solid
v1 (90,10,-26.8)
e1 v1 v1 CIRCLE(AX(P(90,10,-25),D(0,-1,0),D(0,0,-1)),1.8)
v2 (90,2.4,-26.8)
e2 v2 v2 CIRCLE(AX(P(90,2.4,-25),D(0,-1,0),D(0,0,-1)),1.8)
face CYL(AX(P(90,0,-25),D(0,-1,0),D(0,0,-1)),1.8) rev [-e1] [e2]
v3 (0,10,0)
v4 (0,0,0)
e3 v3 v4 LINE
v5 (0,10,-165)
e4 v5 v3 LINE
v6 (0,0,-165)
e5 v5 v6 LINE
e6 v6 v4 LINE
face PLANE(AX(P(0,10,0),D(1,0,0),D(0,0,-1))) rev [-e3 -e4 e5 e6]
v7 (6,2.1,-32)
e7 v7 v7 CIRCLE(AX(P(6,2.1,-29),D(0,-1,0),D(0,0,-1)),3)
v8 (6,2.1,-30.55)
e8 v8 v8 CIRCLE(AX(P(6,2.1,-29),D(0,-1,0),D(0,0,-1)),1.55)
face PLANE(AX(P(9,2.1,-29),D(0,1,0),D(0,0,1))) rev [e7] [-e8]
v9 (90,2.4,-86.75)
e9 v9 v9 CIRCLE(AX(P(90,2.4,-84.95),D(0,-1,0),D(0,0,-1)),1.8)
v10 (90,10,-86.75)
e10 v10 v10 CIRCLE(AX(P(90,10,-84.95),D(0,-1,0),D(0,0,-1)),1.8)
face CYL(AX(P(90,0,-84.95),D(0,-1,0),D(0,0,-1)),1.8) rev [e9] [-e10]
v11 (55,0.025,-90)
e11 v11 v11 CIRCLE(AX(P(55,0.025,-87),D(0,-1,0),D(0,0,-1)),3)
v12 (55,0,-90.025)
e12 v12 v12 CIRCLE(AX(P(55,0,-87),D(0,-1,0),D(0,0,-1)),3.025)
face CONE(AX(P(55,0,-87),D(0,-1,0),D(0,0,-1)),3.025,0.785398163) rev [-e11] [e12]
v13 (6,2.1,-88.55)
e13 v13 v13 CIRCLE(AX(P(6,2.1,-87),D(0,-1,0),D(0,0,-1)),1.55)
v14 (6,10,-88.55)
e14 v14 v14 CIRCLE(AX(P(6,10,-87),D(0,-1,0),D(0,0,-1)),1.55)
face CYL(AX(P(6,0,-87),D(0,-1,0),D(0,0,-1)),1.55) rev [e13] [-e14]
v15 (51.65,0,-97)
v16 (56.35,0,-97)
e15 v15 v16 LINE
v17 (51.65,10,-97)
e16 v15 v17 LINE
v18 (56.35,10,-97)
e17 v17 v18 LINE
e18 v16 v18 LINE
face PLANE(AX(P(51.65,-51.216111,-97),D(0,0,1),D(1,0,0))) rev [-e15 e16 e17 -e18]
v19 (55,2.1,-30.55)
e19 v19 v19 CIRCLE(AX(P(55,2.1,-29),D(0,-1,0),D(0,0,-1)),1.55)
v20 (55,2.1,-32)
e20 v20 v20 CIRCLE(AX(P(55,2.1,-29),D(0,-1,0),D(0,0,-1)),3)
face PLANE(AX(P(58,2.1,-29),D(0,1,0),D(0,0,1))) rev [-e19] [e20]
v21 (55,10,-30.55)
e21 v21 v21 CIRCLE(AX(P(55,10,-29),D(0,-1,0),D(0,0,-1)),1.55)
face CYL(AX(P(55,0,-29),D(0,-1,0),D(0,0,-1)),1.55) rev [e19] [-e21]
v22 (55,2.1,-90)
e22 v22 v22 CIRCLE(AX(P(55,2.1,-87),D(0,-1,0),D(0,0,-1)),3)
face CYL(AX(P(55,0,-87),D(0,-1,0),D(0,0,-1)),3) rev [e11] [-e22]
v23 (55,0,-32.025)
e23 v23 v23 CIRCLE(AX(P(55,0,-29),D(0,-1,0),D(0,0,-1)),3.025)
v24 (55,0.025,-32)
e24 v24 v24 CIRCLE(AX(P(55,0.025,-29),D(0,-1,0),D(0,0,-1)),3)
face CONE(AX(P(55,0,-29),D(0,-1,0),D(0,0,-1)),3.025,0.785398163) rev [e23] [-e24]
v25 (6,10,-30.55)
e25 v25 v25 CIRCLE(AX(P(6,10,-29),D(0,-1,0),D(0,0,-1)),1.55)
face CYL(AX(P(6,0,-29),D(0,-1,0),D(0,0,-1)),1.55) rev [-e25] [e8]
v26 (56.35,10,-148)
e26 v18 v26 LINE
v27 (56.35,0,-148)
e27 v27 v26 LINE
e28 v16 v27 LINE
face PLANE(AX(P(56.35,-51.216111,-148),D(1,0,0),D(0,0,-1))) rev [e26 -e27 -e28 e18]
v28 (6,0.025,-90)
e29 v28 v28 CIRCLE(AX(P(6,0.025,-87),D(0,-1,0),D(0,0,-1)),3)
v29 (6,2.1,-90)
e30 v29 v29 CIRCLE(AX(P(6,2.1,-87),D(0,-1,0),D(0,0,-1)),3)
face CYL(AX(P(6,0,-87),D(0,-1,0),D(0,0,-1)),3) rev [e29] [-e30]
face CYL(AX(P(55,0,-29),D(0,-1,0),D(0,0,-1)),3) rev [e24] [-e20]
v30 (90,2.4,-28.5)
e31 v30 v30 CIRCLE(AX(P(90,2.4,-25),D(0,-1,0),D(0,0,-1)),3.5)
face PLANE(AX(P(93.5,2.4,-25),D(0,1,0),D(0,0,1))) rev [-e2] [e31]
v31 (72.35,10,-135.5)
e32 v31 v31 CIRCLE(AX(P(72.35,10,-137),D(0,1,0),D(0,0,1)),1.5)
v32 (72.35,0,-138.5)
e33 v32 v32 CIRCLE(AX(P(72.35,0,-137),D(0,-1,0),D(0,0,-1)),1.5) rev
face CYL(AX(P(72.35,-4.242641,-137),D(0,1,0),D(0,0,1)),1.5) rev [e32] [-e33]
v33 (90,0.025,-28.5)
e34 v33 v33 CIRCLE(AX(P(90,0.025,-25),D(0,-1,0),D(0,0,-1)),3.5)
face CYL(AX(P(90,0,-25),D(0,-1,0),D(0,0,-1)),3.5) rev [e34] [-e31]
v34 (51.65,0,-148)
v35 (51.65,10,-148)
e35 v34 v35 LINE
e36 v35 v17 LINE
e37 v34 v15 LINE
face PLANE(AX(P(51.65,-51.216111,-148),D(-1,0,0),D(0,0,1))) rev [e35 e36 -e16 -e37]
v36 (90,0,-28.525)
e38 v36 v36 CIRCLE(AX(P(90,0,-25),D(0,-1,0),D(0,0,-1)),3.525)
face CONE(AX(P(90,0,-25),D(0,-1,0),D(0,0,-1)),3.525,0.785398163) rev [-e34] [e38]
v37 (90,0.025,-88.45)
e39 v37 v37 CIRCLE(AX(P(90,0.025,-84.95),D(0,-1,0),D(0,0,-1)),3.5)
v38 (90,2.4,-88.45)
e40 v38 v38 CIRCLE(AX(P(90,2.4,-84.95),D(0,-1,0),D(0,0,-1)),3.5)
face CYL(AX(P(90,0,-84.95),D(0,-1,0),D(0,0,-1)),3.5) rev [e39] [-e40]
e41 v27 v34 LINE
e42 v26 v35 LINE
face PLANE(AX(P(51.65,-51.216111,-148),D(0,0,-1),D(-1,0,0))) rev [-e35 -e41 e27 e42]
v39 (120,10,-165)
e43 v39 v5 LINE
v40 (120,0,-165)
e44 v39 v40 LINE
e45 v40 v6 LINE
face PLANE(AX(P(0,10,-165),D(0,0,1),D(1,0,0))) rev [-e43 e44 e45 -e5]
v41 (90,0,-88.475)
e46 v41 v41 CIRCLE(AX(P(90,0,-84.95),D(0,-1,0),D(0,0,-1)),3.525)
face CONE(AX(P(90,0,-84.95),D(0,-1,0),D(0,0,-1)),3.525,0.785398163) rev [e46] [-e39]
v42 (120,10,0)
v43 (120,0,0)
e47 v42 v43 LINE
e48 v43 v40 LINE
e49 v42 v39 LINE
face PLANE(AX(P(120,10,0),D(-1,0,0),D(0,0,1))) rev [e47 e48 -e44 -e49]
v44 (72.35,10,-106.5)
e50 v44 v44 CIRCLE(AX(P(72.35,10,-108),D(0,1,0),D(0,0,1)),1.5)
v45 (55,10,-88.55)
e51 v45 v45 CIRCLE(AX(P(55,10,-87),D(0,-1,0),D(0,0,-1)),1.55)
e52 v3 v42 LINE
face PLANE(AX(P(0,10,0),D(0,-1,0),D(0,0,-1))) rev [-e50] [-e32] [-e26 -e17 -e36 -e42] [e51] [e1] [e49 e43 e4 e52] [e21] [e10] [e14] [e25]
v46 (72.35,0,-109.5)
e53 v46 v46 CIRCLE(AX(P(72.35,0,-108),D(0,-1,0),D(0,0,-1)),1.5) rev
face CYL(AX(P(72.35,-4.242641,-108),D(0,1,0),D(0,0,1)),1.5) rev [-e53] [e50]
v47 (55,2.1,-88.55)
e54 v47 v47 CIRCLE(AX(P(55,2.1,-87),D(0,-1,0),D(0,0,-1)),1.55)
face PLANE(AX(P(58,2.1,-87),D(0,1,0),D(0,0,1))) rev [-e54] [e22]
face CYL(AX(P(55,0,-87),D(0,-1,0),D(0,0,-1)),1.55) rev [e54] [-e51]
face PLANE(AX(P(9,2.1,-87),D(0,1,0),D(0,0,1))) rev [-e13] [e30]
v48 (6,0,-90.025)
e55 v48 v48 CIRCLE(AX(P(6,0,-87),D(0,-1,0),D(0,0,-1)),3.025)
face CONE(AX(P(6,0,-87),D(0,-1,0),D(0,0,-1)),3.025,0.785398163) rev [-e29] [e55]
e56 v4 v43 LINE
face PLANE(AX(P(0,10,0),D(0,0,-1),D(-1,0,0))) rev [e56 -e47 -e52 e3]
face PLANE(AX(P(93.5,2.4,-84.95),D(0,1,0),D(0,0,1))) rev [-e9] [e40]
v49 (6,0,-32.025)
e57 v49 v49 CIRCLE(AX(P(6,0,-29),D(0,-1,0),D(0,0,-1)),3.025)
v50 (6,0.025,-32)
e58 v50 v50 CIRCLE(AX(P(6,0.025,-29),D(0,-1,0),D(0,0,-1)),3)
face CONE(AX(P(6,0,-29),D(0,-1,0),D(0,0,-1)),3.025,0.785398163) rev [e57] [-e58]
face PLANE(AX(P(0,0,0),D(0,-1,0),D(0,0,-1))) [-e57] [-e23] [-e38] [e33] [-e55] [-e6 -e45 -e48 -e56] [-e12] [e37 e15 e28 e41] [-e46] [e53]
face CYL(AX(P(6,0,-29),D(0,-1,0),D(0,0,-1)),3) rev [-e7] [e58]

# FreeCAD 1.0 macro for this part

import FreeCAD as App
import Part
import Sketcher
Q = App.Units.Quantity


def add_polygon(sketch, points):
    """Adds a closed chain of lines whose ends are joined by coincident constraints."""
    first, n = sketch.GeometryCount, len(points)
    for a, b in zip(points, points[1:] + points[:1]):
        sketch.addGeometry(Part.LineSegment(App.Vector(*a, 0), App.Vector(*b, 0)), False)
    for i in range(n):
        sketch.addConstraint(Sketcher.Constraint("Coincident", first + i, 2, first + (i + 1) % n, 1))

doc = App.newDocument("Part")
body = doc.addObject("PartDesign::Body", "Body")

# Sketch on XZ plane
sketch1 = body.newObject("Sketcher::SketchObject", "Sketch")
sketch1.AttachmentSupport = (doc.getObject("XZ_Plane"), [""])
sketch1.MapMode = "FlatFace"
add_polygon(sketch1, [(0, -165), (0, 0), (120, 0), (120, -165)])  # lines 0-3
sketch1.addConstraint(Sketcher.Constraint("Vertical", 0))
sketch1.addConstraint(Sketcher.Constraint("Horizontal", 1))
sketch1.addConstraint(Sketcher.Constraint("Vertical", 2))
sketch1.addConstraint(Sketcher.Constraint("Horizontal", 3))
sketch1.addConstraint(Sketcher.Constraint("Coincident", 0, 2, -1, 1))
sketch1.addConstraint(Sketcher.Constraint("DistanceX", 1, 1, 1, 2, 120.0))
sketch1.addConstraint(Sketcher.Constraint("DistanceY", 0, 1, 0, 2, 165.0))
pad1 = body.newObject("PartDesign::Pad", "Pad")
pad1.Profile = sketch1
pad1.Length = 10
pad1.Reversed = True

# Sketch on YZ plane
sketch2 = body.newObject("Sketcher::SketchObject", "Sketch001")
sketch2.AttachmentSupport = (doc.getObject("YZ_Plane"), [""])
sketch2.MapMode = "FlatFace"
sketch2.AttachmentOffset = App.Placement(App.Vector(0, 0, 6), App.Rotation())
add_polygon(sketch2, [(10, -29), (0, -29), (0, -32.025), (0.025, -32), (2.1, -32), (2.1, -30.55), (10, -30.55)])  # lines 0-6
sketch2.addGeometry(Part.LineSegment(App.Vector(0, -29, 0), App.Vector(10, -29, 0)), True)  # axis
sketch2.addConstraint(Sketcher.Constraint("Horizontal", 0))
sketch2.addConstraint(Sketcher.Constraint("Vertical", 1))
sketch2.addConstraint(Sketcher.Constraint("Horizontal", 3))
sketch2.addConstraint(Sketcher.Constraint("Vertical", 4))
sketch2.addConstraint(Sketcher.Constraint("Horizontal", 5))
sketch2.addConstraint(Sketcher.Constraint("Vertical", 6))
sketch2.addConstraint(Sketcher.Constraint("Horizontal", 7))
sketch2.addConstraint(Sketcher.Constraint("Coincident", 7, 1, 0, 2))
sketch2.addConstraint(Sketcher.Constraint("PointOnObject", 0, 2, -2))
sketch2.addConstraint(Sketcher.Constraint("Vertical", 5, 2, 7, 2))
sketch2.addConstraint(Sketcher.Constraint("DistanceX", 0, 2, 0, 1, 10.0))
sketch2.addConstraint(Sketcher.Constraint("Angle", 2, Q("45 deg")))
sketch2.addConstraint(Sketcher.Constraint("DistanceX", 5, 1, 5, 2, 7.9))
sketch2.addConstraint(Sketcher.Constraint("DistanceY", 0, 2, -1, 1, 29.0))
sketch2.addConstraint(Sketcher.Constraint("DistanceY", 2, 2, -1, 1, 32.0))
sketch2.addConstraint(Sketcher.Constraint("DistanceY", 4, 1, 4, 2, 1.45))
sketch2.addConstraint(Sketcher.Constraint("DistanceX", 3, 1, 3, 2, 2.075))
groove = body.newObject("PartDesign::Groove", "Groove")
groove.Profile = sketch2
groove.ReferenceAxis = (sketch2, ["Axis0"])
groove.Angle = 360
doc.recompute()

linearpattern = body.newObject("PartDesign::LinearPattern", "LinearPattern")
linearpattern.Originals = [groove]
linearpattern.Direction = (doc.getObject("X_Axis"), [""])
linearpattern.Mode = "offset"
linearpattern.Offset = 49
linearpattern.Occurrences = 2
body.Tip = linearpattern
doc.recompute()

datumline = body.newObject("PartDesign::Line", "DatumLine")
datumline.Placement = App.Placement(App.Vector(0, 0, 0), App.Rotation(App.Vector(0, 0, 1), App.Vector(0.645351649, 0, -0.763885626)))
linearpattern2 = body.newObject("PartDesign::LinearPattern", "LinearPattern001")
linearpattern2.Originals = [groove]
linearpattern2.Direction = (datumline, [""])
linearpattern2.Mode = "offset"
linearpattern2.Offset = 75.927597
linearpattern2.Occurrences = 2
body.Tip = linearpattern2
doc.recompute()

linearpattern3 = body.newObject("PartDesign::LinearPattern", "LinearPattern002")
linearpattern3.Originals = [groove]
linearpattern3.Direction = (doc.getObject("Z_Axis"), [""])
linearpattern3.Mode = "offset"
linearpattern3.Offset = 58
linearpattern3.Occurrences = 2
linearpattern3.Reversed = True
body.Tip = linearpattern3

# Sketch on YZ plane
sketch3 = body.newObject("Sketcher::SketchObject", "Sketch002")
sketch3.AttachmentSupport = (doc.getObject("YZ_Plane"), [""])
sketch3.MapMode = "FlatFace"
sketch3.AttachmentOffset = App.Placement(App.Vector(0, 0, 90), App.Rotation())
add_polygon(sketch3, [(10, -25), (0, -25), (0, -28.525), (0.025, -28.5), (2.4, -28.5), (2.4, -26.8), (10, -26.8)])  # lines 0-6
sketch3.addGeometry(Part.LineSegment(App.Vector(0, -25, 0), App.Vector(10, -25, 0)), True)  # axis
sketch3.addConstraint(Sketcher.Constraint("Horizontal", 0))
sketch3.addConstraint(Sketcher.Constraint("Vertical", 1))
sketch3.addConstraint(Sketcher.Constraint("Horizontal", 3))
sketch3.addConstraint(Sketcher.Constraint("Vertical", 4))
sketch3.addConstraint(Sketcher.Constraint("Horizontal", 5))
sketch3.addConstraint(Sketcher.Constraint("Vertical", 6))
sketch3.addConstraint(Sketcher.Constraint("Horizontal", 7))
sketch3.addConstraint(Sketcher.Constraint("Coincident", 7, 1, 0, 2))
sketch3.addConstraint(Sketcher.Constraint("PointOnObject", 0, 2, -2))
sketch3.addConstraint(Sketcher.Constraint("Vertical", 5, 2, 7, 2))
sketch3.addConstraint(Sketcher.Constraint("DistanceX", 0, 2, 0, 1, 10.0))
sketch3.addConstraint(Sketcher.Constraint("Angle", 2, Q("45 deg")))
sketch3.addConstraint(Sketcher.Constraint("DistanceX", 5, 1, 5, 2, 7.6))
sketch3.addConstraint(Sketcher.Constraint("DistanceY", 4, 1, 4, 2, 1.7))
sketch3.addConstraint(Sketcher.Constraint("DistanceY", 6, 1, 6, 2, 1.8))
sketch3.addConstraint(Sketcher.Constraint("DistanceY", 0, 2, -1, 1, 25.0))
sketch3.addConstraint(Sketcher.Constraint("DistanceX", 3, 1, 3, 2, 2.375))
groove2 = body.newObject("PartDesign::Groove", "Groove001")
groove2.Profile = sketch3
groove2.ReferenceAxis = (sketch3, ["Axis0"])
groove2.Angle = 360
doc.recompute()

linearpattern4 = body.newObject("PartDesign::LinearPattern", "LinearPattern003")
linearpattern4.Originals = [groove2]
linearpattern4.Direction = (doc.getObject("Z_Axis"), [""])
linearpattern4.Mode = "offset"
linearpattern4.Offset = 59.95
linearpattern4.Occurrences = 2
linearpattern4.Reversed = True
body.Tip = linearpattern4

# Sketch on XZ plane
sketch4 = body.newObject("Sketcher::SketchObject", "Sketch003")
sketch4.AttachmentSupport = (doc.getObject("XZ_Plane"), [""])
sketch4.MapMode = "FlatFace"
sketch4.AttachmentOffset = App.Placement(App.Vector(0, 0, -10), App.Rotation())
add_polygon(sketch4, [(51.6, -148), (51.6, -97), (56.4, -97), (56.4, -148)])  # lines 0-3
sketch4.addConstraint(Sketcher.Constraint("Vertical", 0))
sketch4.addConstraint(Sketcher.Constraint("Horizontal", 1))
sketch4.addConstraint(Sketcher.Constraint("Vertical", 2))
sketch4.addConstraint(Sketcher.Constraint("Horizontal", 3))
sketch4.addConstraint(Sketcher.Constraint("DistanceY", 0, 1, 0, 2, 51.0))
sketch4.addConstraint(Sketcher.Constraint("DistanceX", 1, 1, 1, 2, 4.7))
sketch4.addConstraint(Sketcher.Constraint("DistanceY", 0, 2, -1, 1, 97.0))
sketch4.addConstraint(Sketcher.Constraint("DistanceX", -1, 1, 0, 2, 51.65))
pocket1 = body.newObject("PartDesign::Pocket", "Pocket")
pocket1.Profile = sketch4
pocket1.Length = 10
pocket1.Reversed = True

# Sketch on XZ plane
sketch5 = body.newObject("Sketcher::SketchObject", "Sketch004")
sketch5.AttachmentSupport = (doc.getObject("XZ_Plane"), [""])
sketch5.MapMode = "FlatFace"
sketch5.AttachmentOffset = App.Placement(App.Vector(0, 0, -10), App.Rotation())
sketch5.addGeometry(Part.Circle(App.Vector(72.3, -137, 0), App.Vector(0, 0, 1), 1.5), False)
sketch5.addGeometry(Part.Circle(App.Vector(72.3, -108, 0), App.Vector(0, 0, 1), 1.5), False)
sketch5.addConstraint(Sketcher.Constraint("Equal", 0, 1))
sketch5.addConstraint(Sketcher.Constraint("Vertical", 0, 3, 1, 3))
sketch5.addConstraint(Sketcher.Constraint("Diameter", 0, 3.0))
sketch5.addConstraint(Sketcher.Constraint("DistanceY", 0, 3, -1, 1, 137.0))
sketch5.addConstraint(Sketcher.Constraint("DistanceY", 1, 3, -1, 1, 108.0))
sketch5.addConstraint(Sketcher.Constraint("DistanceX", -1, 1, 0, 3, 72.35))
pocket2 = body.newObject("PartDesign::Pocket", "Pocket001")
pocket2.Profile = sketch5
pocket2.Length = 10
pocket2.Reversed = True

doc.recompute()
